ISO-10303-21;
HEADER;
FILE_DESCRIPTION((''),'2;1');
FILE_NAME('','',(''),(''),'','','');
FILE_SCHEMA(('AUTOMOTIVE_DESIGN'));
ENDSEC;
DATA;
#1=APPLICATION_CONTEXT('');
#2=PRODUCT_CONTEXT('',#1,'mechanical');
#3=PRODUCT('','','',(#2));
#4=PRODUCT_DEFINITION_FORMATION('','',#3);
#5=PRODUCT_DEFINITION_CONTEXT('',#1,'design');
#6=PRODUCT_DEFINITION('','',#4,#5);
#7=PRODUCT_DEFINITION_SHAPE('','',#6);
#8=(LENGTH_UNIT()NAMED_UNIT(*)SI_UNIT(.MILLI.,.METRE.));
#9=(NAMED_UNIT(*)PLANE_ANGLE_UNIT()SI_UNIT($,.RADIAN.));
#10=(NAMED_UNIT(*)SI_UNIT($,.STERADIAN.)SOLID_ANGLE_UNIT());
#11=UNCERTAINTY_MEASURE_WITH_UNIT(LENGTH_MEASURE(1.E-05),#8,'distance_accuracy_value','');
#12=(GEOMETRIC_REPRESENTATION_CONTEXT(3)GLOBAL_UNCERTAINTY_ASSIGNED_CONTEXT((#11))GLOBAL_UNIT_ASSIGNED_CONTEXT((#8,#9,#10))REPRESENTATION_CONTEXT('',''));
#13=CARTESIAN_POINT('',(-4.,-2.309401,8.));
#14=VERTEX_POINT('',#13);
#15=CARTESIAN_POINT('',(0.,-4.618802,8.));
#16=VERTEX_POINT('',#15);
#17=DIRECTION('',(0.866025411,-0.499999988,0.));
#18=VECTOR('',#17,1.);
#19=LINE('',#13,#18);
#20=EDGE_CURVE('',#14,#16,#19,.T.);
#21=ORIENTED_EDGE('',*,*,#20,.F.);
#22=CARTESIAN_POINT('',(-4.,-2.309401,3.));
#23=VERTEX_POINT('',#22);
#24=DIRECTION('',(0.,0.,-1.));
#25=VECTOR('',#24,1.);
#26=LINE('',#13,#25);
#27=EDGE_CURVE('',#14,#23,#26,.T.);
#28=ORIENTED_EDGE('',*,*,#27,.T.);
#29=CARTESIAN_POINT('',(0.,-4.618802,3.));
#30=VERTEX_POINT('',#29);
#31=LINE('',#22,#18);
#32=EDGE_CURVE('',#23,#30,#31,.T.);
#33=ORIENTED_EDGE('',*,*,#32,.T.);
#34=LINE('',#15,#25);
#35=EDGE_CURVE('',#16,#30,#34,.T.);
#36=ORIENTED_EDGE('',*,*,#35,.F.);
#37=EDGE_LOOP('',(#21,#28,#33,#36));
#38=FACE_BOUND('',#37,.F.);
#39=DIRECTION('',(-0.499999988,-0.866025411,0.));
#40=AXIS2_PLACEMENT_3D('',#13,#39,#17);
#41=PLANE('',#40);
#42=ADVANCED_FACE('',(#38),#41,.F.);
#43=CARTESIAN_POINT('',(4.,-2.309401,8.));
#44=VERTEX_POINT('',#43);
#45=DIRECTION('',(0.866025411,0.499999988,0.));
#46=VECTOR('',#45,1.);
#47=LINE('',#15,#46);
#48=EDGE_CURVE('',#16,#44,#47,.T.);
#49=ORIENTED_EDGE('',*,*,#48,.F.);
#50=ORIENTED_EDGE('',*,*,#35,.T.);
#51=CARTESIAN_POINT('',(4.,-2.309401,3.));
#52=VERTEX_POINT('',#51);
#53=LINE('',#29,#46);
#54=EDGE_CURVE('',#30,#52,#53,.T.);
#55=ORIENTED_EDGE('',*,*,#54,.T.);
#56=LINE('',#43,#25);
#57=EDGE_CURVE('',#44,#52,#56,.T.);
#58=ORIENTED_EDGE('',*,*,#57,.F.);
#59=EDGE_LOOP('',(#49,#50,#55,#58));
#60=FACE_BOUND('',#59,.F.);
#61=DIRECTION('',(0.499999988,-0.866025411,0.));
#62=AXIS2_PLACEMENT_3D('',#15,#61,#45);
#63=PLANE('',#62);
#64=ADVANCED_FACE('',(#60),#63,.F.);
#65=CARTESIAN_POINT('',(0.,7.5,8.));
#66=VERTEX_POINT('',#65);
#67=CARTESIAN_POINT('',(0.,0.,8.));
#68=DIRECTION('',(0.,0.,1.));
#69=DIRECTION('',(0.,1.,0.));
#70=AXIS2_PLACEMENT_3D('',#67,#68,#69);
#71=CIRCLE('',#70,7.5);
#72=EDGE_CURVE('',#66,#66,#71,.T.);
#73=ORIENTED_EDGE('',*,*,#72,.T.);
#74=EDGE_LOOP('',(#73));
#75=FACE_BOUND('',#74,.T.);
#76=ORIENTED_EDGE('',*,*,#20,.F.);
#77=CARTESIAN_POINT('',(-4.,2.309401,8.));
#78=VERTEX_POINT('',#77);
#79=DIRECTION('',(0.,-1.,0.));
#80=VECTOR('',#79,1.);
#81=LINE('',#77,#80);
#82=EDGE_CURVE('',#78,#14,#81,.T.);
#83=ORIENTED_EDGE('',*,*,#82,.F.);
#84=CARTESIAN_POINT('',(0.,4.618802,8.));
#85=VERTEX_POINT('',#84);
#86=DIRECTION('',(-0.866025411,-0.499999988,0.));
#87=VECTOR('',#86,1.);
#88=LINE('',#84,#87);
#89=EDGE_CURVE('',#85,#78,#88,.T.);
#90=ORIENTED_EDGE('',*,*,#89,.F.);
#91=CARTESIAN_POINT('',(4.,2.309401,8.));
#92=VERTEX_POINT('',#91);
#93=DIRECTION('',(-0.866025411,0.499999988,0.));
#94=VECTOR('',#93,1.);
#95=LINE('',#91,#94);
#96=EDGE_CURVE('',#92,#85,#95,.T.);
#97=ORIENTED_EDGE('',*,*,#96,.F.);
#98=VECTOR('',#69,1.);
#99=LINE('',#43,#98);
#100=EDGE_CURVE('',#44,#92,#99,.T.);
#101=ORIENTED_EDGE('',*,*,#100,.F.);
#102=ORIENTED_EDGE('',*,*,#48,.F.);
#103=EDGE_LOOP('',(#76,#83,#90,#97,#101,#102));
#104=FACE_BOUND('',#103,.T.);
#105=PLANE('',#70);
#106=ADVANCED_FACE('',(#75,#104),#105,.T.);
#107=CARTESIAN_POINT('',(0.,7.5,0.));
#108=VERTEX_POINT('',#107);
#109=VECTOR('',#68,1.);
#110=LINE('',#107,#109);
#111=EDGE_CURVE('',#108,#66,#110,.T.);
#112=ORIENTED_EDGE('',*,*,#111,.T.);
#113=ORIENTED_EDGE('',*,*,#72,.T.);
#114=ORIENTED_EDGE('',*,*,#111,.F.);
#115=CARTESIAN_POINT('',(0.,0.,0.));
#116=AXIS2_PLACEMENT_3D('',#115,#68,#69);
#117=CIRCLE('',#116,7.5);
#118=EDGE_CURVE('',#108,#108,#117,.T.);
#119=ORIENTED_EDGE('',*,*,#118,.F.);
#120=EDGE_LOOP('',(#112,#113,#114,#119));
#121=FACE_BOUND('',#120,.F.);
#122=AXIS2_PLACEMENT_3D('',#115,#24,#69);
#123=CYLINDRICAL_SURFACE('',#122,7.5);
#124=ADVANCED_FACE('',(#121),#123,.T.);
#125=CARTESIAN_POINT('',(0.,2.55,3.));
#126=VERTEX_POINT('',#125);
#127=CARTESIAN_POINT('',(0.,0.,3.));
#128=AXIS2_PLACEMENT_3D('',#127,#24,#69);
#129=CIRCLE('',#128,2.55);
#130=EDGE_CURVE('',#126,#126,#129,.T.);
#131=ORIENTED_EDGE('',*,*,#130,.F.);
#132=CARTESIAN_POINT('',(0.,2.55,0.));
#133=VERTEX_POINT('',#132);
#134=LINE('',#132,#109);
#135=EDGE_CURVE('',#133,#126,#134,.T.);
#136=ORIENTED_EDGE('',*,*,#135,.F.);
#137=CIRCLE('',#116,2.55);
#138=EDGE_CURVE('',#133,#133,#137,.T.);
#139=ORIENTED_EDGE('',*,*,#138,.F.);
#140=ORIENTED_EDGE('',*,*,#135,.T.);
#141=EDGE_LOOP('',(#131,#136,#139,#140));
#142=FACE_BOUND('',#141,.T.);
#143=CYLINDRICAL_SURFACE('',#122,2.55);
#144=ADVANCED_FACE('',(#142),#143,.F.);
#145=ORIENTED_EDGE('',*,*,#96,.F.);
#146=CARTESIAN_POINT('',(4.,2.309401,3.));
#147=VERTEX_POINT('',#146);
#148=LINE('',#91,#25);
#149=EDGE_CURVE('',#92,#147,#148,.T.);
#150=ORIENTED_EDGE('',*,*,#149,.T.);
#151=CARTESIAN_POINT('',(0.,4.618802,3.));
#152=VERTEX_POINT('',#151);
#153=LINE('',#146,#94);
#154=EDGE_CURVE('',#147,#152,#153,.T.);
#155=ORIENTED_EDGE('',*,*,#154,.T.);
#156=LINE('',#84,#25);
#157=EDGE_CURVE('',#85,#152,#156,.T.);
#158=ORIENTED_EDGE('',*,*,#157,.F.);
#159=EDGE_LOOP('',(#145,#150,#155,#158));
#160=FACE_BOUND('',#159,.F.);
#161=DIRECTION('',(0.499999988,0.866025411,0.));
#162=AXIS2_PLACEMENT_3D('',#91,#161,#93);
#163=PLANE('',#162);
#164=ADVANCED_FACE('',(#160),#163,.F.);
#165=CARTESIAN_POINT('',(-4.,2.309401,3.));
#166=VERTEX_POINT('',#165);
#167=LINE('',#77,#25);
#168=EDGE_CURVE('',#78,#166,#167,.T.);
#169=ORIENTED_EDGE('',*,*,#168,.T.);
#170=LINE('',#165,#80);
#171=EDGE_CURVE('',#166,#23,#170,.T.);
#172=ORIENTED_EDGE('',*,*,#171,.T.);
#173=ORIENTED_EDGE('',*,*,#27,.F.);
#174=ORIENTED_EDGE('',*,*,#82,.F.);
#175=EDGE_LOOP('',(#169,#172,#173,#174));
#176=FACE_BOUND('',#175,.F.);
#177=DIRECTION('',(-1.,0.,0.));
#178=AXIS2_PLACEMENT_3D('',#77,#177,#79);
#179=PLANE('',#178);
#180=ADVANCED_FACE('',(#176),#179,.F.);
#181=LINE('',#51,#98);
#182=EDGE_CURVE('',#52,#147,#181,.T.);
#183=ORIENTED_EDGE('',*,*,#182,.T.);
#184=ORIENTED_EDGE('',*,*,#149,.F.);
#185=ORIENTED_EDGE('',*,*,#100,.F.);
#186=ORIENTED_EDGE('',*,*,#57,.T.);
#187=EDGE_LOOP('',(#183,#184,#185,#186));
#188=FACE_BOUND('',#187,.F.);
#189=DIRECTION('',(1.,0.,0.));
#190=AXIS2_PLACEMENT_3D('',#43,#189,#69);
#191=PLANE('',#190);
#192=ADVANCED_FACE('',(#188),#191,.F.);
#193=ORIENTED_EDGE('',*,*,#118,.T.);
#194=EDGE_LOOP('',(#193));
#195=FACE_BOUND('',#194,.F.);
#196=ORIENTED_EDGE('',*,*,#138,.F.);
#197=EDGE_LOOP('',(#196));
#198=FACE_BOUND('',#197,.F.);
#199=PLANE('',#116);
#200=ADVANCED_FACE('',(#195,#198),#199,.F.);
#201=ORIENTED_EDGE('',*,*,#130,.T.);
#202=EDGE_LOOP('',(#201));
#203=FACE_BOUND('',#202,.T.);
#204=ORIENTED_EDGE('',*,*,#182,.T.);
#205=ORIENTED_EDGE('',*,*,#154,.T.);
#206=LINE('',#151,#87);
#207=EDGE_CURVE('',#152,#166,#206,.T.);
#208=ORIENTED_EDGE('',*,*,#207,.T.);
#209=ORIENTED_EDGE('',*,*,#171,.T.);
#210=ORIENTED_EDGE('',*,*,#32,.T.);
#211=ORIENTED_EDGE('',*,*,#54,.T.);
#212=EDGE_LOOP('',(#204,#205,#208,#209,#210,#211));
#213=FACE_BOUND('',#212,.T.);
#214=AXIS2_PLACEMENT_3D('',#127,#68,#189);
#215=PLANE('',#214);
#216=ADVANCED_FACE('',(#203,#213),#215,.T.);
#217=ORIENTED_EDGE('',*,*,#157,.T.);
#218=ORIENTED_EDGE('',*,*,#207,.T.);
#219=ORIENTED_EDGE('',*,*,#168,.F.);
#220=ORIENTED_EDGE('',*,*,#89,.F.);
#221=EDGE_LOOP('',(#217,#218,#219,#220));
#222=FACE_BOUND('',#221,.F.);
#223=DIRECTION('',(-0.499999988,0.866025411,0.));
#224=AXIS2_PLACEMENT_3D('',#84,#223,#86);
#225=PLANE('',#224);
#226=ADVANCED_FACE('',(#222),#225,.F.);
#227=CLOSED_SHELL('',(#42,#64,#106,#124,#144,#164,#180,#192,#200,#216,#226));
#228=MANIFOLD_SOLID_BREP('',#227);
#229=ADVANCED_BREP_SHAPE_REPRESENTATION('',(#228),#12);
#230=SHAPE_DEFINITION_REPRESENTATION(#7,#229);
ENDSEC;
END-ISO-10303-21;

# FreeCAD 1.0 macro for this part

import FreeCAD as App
import Part
import Sketcher

V = App.Vector
Q = App.Units.Quantity


def add_polygon(sketch, points):
    """Adds a closed chain of lines whose ends are joined by coincident constraints."""
    first, n = sketch.GeometryCount, len(points)
    for a, b in zip(points, points[1:] + points[:1]):
        sketch.addGeometry(Part.LineSegment(App.Vector(*a, 0), App.Vector(*b, 0)), False)
    for i in range(n):
        sketch.addConstraint(Sketcher.Constraint("Coincident", first + i, 2, first + (i + 1) % n, 1))

doc = App.newDocument("Part")
body = doc.addObject("PartDesign::Body", "Body")

# Sketch on XY plane
sketch1 = doc.addObject("Sketcher::SketchObject", "Sketch")
body.addObject(sketch1)
sketch1.AttachmentSupport = (doc.XY_Plane, [""])
sketch1.MapMode = "FlatFace"
sketch1.AttachmentOffset = App.Placement(V(0, 0, 8), App.Rotation())
add_polygon(sketch1, [(4, -2.3), (4, 2.3), (0, 4.6), (-4, 2.3), (-4, -2.3), (0, -4.6)])  # lines 0-5
sketch1.addConstraint(Sketcher.Constraint("Vertical", 0))
sketch1.addConstraint(Sketcher.Constraint("Vertical", 3))
sketch1.addConstraint(Sketcher.Constraint("Symmetric", 0, 2, 3, 2, -1, 1))
sketch1.addConstraint(Sketcher.Constraint("Symmetric", 1, 2, 4, 2, -1, 1))
sketch1.addConstraint(Sketcher.Constraint("PointOnObject", 1, 2, -2))
sketch1.addConstraint(Sketcher.Constraint("Parallel", 2, 5))
sketch1.addConstraint(Sketcher.Constraint("Horizontal", 0, 2, 2, 2))
sketch1.addConstraint(Sketcher.Constraint("Angle", 1, Q("150.000001 deg")))
sketch1.addConstraint(Sketcher.Constraint("DistanceX", -1, 1, 0, 2, 4.0))
sketch1.addConstraint(Sketcher.Constraint("DistanceY", 0, 1, 0, 2, 4.618802))
pad1 = doc.addObject("PartDesign::Pad", "Pad")
body.addObject(pad1)
pad1.Profile = sketch1
pad1.Length = 5
pad1.Reversed = True
body2 = doc.addObject("PartDesign::Body", "Body001")

# Sketch on XY plane
sketch2 = doc.addObject("Sketcher::SketchObject", "Sketch001")
body2.addObject(sketch2)
sketch2.AttachmentSupport = (doc.getObject("XY_Plane001"), [""])
sketch2.MapMode = "FlatFace"
sketch2.addGeometry(Part.Circle(V(0, 0, 0), V(0, 0, 1), 7.5), False)
sketch2.addGeometry(Part.Circle(V(0, 0, 0), V(0, 0, 1), 2.5), False)
sketch2.addConstraint(Sketcher.Constraint("Coincident", 0, 3, -1, 1))
sketch2.addConstraint(Sketcher.Constraint("Coincident", 1, 3, -1, 1))
sketch2.addConstraint(Sketcher.Constraint("Diameter", 0, 15.0))
sketch2.addConstraint(Sketcher.Constraint("Diameter", 1, 5.1))
pad2 = doc.addObject("PartDesign::Pad", "Pad001")
body2.addObject(pad2)
pad2.Profile = sketch2
pad2.Length = 8
doc.recompute()

boolean = doc.addObject("PartDesign::Boolean", "Boolean")
body2.addObject(boolean)
boolean.Type = "Cut"
boolean.addObjects([body])

doc.recompute()
